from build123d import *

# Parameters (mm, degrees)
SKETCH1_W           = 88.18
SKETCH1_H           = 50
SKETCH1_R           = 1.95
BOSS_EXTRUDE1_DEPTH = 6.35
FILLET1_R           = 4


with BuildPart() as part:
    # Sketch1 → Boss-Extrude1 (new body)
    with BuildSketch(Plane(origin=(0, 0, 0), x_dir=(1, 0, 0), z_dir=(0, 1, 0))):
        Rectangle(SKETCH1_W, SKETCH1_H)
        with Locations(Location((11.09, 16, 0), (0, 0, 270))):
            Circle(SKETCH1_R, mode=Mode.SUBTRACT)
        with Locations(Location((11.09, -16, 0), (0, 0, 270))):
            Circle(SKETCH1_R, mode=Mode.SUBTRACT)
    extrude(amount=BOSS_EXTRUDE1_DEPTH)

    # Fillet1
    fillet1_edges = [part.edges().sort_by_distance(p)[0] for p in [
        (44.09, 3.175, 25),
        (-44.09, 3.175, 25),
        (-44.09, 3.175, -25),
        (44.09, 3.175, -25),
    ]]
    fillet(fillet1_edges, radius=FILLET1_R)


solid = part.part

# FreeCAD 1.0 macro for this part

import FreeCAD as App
import Part
import Sketcher


def edges_at(feature, points):
    """Names of the edges that pass closest to the given points."""
    edges = feature.Shape.Edges
    near = lambda p: min(range(len(edges)), key=lambda i: edges[i].distToShape(Part.Vertex(*p))[0])
    return sorted({f"Edge{near(p) + 1}" for p in points})


def add_polygon(sketch, points):
    """Adds a closed chain of lines whose ends are joined by coincident constraints."""
    first, n = sketch.GeometryCount, len(points)
    for a, b in zip(points, points[1:] + points[:1]):
        sketch.addGeometry(Part.LineSegment(App.Vector(*a, 0), App.Vector(*b, 0)), False)
    for i in range(n):
        sketch.addConstraint(Sketcher.Constraint("Coincident", first + i, 2, first + (i + 1) % n, 1))

doc = App.newDocument("Part")
body = doc.addObject("PartDesign::Body", "Body")

# Sketch on XZ plane
sketch1 = doc.addObject("Sketcher::SketchObject", "Sketch")
body.addObject(sketch1)
sketch1.AttachmentSupport = (doc.XZ_Plane, [""])
sketch1.MapMode = "FlatFace"
add_polygon(sketch1, [(-44.09, -25), (-44.09, 25), (44.09, 25), (44.09, -25)])  # lines 0-3
sketch1.addGeometry(Part.Circle(App.Vector(11.09, 16, 0), App.Vector(0, 0, 1), 1.95), False)  # 4
sketch1.addGeometry(Part.Circle(App.Vector(11.09, -16, 0), App.Vector(0, 0, 1), 1.95), False)  # 5
sketch1.addConstraint([
    Sketcher.Constraint("Vertical", 0),
    Sketcher.Constraint("Horizontal", 1),
    Sketcher.Constraint("Vertical", 2),
    Sketcher.Constraint("Horizontal", 3),
    Sketcher.Constraint("Equal", 4, 5),
    Sketcher.Constraint("Symmetric", 0, 2, 2, 2, -1, 1),
    Sketcher.Constraint("Symmetric", 4, 3, 5, 3, -1),
    Sketcher.Constraint("Diameter", 4, 3.9),
    Sketcher.Constraint("DistanceY", 0, 1, 0, 2, 50.0),
    Sketcher.Constraint("DistanceY", -1, 1, 4, 3, 16.0),
    Sketcher.Constraint("DistanceX", 4, 3, 1, 2, 33.0),
    Sketcher.Constraint("DistanceX", 1, 1, 1, 2, 88.18),
])
pad1 = doc.addObject("PartDesign::Pad", "Pad")
body.addObject(pad1)
pad1.Profile = sketch1
pad1.Length = 6.35
pad1.Reversed = True
doc.recompute()

fillet = doc.addObject("PartDesign::Fillet", "Fillet")
body.addObject(fillet)
fillet.Base = (pad1, edges_at(pad1, [
    (44.09, 3.175, 25),
    (-44.09, 3.175, 25),
    (-44.09, 3.175, -25),
    (44.09, 3.175, -25),
]))
fillet.Radius = 4

doc.recompute()
